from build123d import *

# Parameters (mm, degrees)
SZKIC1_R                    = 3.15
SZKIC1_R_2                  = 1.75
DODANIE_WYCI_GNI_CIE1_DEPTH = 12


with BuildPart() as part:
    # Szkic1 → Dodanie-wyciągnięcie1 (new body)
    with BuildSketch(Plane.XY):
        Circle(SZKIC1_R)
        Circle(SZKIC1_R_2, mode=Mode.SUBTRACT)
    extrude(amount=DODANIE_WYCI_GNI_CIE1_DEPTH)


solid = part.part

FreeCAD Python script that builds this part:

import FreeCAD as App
import Part
import Sketcher
from FreeCAD import Vector
Q = App.Units.Quantity

doc = App.newDocument("Part")
body = doc.addObject("PartDesign::Body", "Body")

sketch1 = doc.addObject("Sketcher::SketchObject", "Sketch")
body.addObject(sketch1)
sketch1.AttachmentSupport = (doc.XY_Plane, [""])
sketch1.MapMode = "FlatFace"
sketch1.addGeometry([
    Part.Circle(Vector(0, 0, 0), Vector(0, 0, 1), 3.15),
    Part.Circle(Vector(0, 0, 0), Vector(0, 0, 1), 1.75),
], False)
sketch1.addConstraint([
    Sketcher.Constraint("Coincident", 0, 3, -1, 1),
    Sketcher.Constraint("Coincident", 1, 3, -1, 1),
    Sketcher.Constraint("Diameter", 0, Q("6.3 mm")),
    Sketcher.Constraint("Diameter", 1, Q("3.5 mm")),
])
pad1 = doc.addObject("PartDesign::Pad", "Pad")
body.addObject(pad1)
pad1.Profile = sketch1
pad1.Length = 12

doc.recompute()
